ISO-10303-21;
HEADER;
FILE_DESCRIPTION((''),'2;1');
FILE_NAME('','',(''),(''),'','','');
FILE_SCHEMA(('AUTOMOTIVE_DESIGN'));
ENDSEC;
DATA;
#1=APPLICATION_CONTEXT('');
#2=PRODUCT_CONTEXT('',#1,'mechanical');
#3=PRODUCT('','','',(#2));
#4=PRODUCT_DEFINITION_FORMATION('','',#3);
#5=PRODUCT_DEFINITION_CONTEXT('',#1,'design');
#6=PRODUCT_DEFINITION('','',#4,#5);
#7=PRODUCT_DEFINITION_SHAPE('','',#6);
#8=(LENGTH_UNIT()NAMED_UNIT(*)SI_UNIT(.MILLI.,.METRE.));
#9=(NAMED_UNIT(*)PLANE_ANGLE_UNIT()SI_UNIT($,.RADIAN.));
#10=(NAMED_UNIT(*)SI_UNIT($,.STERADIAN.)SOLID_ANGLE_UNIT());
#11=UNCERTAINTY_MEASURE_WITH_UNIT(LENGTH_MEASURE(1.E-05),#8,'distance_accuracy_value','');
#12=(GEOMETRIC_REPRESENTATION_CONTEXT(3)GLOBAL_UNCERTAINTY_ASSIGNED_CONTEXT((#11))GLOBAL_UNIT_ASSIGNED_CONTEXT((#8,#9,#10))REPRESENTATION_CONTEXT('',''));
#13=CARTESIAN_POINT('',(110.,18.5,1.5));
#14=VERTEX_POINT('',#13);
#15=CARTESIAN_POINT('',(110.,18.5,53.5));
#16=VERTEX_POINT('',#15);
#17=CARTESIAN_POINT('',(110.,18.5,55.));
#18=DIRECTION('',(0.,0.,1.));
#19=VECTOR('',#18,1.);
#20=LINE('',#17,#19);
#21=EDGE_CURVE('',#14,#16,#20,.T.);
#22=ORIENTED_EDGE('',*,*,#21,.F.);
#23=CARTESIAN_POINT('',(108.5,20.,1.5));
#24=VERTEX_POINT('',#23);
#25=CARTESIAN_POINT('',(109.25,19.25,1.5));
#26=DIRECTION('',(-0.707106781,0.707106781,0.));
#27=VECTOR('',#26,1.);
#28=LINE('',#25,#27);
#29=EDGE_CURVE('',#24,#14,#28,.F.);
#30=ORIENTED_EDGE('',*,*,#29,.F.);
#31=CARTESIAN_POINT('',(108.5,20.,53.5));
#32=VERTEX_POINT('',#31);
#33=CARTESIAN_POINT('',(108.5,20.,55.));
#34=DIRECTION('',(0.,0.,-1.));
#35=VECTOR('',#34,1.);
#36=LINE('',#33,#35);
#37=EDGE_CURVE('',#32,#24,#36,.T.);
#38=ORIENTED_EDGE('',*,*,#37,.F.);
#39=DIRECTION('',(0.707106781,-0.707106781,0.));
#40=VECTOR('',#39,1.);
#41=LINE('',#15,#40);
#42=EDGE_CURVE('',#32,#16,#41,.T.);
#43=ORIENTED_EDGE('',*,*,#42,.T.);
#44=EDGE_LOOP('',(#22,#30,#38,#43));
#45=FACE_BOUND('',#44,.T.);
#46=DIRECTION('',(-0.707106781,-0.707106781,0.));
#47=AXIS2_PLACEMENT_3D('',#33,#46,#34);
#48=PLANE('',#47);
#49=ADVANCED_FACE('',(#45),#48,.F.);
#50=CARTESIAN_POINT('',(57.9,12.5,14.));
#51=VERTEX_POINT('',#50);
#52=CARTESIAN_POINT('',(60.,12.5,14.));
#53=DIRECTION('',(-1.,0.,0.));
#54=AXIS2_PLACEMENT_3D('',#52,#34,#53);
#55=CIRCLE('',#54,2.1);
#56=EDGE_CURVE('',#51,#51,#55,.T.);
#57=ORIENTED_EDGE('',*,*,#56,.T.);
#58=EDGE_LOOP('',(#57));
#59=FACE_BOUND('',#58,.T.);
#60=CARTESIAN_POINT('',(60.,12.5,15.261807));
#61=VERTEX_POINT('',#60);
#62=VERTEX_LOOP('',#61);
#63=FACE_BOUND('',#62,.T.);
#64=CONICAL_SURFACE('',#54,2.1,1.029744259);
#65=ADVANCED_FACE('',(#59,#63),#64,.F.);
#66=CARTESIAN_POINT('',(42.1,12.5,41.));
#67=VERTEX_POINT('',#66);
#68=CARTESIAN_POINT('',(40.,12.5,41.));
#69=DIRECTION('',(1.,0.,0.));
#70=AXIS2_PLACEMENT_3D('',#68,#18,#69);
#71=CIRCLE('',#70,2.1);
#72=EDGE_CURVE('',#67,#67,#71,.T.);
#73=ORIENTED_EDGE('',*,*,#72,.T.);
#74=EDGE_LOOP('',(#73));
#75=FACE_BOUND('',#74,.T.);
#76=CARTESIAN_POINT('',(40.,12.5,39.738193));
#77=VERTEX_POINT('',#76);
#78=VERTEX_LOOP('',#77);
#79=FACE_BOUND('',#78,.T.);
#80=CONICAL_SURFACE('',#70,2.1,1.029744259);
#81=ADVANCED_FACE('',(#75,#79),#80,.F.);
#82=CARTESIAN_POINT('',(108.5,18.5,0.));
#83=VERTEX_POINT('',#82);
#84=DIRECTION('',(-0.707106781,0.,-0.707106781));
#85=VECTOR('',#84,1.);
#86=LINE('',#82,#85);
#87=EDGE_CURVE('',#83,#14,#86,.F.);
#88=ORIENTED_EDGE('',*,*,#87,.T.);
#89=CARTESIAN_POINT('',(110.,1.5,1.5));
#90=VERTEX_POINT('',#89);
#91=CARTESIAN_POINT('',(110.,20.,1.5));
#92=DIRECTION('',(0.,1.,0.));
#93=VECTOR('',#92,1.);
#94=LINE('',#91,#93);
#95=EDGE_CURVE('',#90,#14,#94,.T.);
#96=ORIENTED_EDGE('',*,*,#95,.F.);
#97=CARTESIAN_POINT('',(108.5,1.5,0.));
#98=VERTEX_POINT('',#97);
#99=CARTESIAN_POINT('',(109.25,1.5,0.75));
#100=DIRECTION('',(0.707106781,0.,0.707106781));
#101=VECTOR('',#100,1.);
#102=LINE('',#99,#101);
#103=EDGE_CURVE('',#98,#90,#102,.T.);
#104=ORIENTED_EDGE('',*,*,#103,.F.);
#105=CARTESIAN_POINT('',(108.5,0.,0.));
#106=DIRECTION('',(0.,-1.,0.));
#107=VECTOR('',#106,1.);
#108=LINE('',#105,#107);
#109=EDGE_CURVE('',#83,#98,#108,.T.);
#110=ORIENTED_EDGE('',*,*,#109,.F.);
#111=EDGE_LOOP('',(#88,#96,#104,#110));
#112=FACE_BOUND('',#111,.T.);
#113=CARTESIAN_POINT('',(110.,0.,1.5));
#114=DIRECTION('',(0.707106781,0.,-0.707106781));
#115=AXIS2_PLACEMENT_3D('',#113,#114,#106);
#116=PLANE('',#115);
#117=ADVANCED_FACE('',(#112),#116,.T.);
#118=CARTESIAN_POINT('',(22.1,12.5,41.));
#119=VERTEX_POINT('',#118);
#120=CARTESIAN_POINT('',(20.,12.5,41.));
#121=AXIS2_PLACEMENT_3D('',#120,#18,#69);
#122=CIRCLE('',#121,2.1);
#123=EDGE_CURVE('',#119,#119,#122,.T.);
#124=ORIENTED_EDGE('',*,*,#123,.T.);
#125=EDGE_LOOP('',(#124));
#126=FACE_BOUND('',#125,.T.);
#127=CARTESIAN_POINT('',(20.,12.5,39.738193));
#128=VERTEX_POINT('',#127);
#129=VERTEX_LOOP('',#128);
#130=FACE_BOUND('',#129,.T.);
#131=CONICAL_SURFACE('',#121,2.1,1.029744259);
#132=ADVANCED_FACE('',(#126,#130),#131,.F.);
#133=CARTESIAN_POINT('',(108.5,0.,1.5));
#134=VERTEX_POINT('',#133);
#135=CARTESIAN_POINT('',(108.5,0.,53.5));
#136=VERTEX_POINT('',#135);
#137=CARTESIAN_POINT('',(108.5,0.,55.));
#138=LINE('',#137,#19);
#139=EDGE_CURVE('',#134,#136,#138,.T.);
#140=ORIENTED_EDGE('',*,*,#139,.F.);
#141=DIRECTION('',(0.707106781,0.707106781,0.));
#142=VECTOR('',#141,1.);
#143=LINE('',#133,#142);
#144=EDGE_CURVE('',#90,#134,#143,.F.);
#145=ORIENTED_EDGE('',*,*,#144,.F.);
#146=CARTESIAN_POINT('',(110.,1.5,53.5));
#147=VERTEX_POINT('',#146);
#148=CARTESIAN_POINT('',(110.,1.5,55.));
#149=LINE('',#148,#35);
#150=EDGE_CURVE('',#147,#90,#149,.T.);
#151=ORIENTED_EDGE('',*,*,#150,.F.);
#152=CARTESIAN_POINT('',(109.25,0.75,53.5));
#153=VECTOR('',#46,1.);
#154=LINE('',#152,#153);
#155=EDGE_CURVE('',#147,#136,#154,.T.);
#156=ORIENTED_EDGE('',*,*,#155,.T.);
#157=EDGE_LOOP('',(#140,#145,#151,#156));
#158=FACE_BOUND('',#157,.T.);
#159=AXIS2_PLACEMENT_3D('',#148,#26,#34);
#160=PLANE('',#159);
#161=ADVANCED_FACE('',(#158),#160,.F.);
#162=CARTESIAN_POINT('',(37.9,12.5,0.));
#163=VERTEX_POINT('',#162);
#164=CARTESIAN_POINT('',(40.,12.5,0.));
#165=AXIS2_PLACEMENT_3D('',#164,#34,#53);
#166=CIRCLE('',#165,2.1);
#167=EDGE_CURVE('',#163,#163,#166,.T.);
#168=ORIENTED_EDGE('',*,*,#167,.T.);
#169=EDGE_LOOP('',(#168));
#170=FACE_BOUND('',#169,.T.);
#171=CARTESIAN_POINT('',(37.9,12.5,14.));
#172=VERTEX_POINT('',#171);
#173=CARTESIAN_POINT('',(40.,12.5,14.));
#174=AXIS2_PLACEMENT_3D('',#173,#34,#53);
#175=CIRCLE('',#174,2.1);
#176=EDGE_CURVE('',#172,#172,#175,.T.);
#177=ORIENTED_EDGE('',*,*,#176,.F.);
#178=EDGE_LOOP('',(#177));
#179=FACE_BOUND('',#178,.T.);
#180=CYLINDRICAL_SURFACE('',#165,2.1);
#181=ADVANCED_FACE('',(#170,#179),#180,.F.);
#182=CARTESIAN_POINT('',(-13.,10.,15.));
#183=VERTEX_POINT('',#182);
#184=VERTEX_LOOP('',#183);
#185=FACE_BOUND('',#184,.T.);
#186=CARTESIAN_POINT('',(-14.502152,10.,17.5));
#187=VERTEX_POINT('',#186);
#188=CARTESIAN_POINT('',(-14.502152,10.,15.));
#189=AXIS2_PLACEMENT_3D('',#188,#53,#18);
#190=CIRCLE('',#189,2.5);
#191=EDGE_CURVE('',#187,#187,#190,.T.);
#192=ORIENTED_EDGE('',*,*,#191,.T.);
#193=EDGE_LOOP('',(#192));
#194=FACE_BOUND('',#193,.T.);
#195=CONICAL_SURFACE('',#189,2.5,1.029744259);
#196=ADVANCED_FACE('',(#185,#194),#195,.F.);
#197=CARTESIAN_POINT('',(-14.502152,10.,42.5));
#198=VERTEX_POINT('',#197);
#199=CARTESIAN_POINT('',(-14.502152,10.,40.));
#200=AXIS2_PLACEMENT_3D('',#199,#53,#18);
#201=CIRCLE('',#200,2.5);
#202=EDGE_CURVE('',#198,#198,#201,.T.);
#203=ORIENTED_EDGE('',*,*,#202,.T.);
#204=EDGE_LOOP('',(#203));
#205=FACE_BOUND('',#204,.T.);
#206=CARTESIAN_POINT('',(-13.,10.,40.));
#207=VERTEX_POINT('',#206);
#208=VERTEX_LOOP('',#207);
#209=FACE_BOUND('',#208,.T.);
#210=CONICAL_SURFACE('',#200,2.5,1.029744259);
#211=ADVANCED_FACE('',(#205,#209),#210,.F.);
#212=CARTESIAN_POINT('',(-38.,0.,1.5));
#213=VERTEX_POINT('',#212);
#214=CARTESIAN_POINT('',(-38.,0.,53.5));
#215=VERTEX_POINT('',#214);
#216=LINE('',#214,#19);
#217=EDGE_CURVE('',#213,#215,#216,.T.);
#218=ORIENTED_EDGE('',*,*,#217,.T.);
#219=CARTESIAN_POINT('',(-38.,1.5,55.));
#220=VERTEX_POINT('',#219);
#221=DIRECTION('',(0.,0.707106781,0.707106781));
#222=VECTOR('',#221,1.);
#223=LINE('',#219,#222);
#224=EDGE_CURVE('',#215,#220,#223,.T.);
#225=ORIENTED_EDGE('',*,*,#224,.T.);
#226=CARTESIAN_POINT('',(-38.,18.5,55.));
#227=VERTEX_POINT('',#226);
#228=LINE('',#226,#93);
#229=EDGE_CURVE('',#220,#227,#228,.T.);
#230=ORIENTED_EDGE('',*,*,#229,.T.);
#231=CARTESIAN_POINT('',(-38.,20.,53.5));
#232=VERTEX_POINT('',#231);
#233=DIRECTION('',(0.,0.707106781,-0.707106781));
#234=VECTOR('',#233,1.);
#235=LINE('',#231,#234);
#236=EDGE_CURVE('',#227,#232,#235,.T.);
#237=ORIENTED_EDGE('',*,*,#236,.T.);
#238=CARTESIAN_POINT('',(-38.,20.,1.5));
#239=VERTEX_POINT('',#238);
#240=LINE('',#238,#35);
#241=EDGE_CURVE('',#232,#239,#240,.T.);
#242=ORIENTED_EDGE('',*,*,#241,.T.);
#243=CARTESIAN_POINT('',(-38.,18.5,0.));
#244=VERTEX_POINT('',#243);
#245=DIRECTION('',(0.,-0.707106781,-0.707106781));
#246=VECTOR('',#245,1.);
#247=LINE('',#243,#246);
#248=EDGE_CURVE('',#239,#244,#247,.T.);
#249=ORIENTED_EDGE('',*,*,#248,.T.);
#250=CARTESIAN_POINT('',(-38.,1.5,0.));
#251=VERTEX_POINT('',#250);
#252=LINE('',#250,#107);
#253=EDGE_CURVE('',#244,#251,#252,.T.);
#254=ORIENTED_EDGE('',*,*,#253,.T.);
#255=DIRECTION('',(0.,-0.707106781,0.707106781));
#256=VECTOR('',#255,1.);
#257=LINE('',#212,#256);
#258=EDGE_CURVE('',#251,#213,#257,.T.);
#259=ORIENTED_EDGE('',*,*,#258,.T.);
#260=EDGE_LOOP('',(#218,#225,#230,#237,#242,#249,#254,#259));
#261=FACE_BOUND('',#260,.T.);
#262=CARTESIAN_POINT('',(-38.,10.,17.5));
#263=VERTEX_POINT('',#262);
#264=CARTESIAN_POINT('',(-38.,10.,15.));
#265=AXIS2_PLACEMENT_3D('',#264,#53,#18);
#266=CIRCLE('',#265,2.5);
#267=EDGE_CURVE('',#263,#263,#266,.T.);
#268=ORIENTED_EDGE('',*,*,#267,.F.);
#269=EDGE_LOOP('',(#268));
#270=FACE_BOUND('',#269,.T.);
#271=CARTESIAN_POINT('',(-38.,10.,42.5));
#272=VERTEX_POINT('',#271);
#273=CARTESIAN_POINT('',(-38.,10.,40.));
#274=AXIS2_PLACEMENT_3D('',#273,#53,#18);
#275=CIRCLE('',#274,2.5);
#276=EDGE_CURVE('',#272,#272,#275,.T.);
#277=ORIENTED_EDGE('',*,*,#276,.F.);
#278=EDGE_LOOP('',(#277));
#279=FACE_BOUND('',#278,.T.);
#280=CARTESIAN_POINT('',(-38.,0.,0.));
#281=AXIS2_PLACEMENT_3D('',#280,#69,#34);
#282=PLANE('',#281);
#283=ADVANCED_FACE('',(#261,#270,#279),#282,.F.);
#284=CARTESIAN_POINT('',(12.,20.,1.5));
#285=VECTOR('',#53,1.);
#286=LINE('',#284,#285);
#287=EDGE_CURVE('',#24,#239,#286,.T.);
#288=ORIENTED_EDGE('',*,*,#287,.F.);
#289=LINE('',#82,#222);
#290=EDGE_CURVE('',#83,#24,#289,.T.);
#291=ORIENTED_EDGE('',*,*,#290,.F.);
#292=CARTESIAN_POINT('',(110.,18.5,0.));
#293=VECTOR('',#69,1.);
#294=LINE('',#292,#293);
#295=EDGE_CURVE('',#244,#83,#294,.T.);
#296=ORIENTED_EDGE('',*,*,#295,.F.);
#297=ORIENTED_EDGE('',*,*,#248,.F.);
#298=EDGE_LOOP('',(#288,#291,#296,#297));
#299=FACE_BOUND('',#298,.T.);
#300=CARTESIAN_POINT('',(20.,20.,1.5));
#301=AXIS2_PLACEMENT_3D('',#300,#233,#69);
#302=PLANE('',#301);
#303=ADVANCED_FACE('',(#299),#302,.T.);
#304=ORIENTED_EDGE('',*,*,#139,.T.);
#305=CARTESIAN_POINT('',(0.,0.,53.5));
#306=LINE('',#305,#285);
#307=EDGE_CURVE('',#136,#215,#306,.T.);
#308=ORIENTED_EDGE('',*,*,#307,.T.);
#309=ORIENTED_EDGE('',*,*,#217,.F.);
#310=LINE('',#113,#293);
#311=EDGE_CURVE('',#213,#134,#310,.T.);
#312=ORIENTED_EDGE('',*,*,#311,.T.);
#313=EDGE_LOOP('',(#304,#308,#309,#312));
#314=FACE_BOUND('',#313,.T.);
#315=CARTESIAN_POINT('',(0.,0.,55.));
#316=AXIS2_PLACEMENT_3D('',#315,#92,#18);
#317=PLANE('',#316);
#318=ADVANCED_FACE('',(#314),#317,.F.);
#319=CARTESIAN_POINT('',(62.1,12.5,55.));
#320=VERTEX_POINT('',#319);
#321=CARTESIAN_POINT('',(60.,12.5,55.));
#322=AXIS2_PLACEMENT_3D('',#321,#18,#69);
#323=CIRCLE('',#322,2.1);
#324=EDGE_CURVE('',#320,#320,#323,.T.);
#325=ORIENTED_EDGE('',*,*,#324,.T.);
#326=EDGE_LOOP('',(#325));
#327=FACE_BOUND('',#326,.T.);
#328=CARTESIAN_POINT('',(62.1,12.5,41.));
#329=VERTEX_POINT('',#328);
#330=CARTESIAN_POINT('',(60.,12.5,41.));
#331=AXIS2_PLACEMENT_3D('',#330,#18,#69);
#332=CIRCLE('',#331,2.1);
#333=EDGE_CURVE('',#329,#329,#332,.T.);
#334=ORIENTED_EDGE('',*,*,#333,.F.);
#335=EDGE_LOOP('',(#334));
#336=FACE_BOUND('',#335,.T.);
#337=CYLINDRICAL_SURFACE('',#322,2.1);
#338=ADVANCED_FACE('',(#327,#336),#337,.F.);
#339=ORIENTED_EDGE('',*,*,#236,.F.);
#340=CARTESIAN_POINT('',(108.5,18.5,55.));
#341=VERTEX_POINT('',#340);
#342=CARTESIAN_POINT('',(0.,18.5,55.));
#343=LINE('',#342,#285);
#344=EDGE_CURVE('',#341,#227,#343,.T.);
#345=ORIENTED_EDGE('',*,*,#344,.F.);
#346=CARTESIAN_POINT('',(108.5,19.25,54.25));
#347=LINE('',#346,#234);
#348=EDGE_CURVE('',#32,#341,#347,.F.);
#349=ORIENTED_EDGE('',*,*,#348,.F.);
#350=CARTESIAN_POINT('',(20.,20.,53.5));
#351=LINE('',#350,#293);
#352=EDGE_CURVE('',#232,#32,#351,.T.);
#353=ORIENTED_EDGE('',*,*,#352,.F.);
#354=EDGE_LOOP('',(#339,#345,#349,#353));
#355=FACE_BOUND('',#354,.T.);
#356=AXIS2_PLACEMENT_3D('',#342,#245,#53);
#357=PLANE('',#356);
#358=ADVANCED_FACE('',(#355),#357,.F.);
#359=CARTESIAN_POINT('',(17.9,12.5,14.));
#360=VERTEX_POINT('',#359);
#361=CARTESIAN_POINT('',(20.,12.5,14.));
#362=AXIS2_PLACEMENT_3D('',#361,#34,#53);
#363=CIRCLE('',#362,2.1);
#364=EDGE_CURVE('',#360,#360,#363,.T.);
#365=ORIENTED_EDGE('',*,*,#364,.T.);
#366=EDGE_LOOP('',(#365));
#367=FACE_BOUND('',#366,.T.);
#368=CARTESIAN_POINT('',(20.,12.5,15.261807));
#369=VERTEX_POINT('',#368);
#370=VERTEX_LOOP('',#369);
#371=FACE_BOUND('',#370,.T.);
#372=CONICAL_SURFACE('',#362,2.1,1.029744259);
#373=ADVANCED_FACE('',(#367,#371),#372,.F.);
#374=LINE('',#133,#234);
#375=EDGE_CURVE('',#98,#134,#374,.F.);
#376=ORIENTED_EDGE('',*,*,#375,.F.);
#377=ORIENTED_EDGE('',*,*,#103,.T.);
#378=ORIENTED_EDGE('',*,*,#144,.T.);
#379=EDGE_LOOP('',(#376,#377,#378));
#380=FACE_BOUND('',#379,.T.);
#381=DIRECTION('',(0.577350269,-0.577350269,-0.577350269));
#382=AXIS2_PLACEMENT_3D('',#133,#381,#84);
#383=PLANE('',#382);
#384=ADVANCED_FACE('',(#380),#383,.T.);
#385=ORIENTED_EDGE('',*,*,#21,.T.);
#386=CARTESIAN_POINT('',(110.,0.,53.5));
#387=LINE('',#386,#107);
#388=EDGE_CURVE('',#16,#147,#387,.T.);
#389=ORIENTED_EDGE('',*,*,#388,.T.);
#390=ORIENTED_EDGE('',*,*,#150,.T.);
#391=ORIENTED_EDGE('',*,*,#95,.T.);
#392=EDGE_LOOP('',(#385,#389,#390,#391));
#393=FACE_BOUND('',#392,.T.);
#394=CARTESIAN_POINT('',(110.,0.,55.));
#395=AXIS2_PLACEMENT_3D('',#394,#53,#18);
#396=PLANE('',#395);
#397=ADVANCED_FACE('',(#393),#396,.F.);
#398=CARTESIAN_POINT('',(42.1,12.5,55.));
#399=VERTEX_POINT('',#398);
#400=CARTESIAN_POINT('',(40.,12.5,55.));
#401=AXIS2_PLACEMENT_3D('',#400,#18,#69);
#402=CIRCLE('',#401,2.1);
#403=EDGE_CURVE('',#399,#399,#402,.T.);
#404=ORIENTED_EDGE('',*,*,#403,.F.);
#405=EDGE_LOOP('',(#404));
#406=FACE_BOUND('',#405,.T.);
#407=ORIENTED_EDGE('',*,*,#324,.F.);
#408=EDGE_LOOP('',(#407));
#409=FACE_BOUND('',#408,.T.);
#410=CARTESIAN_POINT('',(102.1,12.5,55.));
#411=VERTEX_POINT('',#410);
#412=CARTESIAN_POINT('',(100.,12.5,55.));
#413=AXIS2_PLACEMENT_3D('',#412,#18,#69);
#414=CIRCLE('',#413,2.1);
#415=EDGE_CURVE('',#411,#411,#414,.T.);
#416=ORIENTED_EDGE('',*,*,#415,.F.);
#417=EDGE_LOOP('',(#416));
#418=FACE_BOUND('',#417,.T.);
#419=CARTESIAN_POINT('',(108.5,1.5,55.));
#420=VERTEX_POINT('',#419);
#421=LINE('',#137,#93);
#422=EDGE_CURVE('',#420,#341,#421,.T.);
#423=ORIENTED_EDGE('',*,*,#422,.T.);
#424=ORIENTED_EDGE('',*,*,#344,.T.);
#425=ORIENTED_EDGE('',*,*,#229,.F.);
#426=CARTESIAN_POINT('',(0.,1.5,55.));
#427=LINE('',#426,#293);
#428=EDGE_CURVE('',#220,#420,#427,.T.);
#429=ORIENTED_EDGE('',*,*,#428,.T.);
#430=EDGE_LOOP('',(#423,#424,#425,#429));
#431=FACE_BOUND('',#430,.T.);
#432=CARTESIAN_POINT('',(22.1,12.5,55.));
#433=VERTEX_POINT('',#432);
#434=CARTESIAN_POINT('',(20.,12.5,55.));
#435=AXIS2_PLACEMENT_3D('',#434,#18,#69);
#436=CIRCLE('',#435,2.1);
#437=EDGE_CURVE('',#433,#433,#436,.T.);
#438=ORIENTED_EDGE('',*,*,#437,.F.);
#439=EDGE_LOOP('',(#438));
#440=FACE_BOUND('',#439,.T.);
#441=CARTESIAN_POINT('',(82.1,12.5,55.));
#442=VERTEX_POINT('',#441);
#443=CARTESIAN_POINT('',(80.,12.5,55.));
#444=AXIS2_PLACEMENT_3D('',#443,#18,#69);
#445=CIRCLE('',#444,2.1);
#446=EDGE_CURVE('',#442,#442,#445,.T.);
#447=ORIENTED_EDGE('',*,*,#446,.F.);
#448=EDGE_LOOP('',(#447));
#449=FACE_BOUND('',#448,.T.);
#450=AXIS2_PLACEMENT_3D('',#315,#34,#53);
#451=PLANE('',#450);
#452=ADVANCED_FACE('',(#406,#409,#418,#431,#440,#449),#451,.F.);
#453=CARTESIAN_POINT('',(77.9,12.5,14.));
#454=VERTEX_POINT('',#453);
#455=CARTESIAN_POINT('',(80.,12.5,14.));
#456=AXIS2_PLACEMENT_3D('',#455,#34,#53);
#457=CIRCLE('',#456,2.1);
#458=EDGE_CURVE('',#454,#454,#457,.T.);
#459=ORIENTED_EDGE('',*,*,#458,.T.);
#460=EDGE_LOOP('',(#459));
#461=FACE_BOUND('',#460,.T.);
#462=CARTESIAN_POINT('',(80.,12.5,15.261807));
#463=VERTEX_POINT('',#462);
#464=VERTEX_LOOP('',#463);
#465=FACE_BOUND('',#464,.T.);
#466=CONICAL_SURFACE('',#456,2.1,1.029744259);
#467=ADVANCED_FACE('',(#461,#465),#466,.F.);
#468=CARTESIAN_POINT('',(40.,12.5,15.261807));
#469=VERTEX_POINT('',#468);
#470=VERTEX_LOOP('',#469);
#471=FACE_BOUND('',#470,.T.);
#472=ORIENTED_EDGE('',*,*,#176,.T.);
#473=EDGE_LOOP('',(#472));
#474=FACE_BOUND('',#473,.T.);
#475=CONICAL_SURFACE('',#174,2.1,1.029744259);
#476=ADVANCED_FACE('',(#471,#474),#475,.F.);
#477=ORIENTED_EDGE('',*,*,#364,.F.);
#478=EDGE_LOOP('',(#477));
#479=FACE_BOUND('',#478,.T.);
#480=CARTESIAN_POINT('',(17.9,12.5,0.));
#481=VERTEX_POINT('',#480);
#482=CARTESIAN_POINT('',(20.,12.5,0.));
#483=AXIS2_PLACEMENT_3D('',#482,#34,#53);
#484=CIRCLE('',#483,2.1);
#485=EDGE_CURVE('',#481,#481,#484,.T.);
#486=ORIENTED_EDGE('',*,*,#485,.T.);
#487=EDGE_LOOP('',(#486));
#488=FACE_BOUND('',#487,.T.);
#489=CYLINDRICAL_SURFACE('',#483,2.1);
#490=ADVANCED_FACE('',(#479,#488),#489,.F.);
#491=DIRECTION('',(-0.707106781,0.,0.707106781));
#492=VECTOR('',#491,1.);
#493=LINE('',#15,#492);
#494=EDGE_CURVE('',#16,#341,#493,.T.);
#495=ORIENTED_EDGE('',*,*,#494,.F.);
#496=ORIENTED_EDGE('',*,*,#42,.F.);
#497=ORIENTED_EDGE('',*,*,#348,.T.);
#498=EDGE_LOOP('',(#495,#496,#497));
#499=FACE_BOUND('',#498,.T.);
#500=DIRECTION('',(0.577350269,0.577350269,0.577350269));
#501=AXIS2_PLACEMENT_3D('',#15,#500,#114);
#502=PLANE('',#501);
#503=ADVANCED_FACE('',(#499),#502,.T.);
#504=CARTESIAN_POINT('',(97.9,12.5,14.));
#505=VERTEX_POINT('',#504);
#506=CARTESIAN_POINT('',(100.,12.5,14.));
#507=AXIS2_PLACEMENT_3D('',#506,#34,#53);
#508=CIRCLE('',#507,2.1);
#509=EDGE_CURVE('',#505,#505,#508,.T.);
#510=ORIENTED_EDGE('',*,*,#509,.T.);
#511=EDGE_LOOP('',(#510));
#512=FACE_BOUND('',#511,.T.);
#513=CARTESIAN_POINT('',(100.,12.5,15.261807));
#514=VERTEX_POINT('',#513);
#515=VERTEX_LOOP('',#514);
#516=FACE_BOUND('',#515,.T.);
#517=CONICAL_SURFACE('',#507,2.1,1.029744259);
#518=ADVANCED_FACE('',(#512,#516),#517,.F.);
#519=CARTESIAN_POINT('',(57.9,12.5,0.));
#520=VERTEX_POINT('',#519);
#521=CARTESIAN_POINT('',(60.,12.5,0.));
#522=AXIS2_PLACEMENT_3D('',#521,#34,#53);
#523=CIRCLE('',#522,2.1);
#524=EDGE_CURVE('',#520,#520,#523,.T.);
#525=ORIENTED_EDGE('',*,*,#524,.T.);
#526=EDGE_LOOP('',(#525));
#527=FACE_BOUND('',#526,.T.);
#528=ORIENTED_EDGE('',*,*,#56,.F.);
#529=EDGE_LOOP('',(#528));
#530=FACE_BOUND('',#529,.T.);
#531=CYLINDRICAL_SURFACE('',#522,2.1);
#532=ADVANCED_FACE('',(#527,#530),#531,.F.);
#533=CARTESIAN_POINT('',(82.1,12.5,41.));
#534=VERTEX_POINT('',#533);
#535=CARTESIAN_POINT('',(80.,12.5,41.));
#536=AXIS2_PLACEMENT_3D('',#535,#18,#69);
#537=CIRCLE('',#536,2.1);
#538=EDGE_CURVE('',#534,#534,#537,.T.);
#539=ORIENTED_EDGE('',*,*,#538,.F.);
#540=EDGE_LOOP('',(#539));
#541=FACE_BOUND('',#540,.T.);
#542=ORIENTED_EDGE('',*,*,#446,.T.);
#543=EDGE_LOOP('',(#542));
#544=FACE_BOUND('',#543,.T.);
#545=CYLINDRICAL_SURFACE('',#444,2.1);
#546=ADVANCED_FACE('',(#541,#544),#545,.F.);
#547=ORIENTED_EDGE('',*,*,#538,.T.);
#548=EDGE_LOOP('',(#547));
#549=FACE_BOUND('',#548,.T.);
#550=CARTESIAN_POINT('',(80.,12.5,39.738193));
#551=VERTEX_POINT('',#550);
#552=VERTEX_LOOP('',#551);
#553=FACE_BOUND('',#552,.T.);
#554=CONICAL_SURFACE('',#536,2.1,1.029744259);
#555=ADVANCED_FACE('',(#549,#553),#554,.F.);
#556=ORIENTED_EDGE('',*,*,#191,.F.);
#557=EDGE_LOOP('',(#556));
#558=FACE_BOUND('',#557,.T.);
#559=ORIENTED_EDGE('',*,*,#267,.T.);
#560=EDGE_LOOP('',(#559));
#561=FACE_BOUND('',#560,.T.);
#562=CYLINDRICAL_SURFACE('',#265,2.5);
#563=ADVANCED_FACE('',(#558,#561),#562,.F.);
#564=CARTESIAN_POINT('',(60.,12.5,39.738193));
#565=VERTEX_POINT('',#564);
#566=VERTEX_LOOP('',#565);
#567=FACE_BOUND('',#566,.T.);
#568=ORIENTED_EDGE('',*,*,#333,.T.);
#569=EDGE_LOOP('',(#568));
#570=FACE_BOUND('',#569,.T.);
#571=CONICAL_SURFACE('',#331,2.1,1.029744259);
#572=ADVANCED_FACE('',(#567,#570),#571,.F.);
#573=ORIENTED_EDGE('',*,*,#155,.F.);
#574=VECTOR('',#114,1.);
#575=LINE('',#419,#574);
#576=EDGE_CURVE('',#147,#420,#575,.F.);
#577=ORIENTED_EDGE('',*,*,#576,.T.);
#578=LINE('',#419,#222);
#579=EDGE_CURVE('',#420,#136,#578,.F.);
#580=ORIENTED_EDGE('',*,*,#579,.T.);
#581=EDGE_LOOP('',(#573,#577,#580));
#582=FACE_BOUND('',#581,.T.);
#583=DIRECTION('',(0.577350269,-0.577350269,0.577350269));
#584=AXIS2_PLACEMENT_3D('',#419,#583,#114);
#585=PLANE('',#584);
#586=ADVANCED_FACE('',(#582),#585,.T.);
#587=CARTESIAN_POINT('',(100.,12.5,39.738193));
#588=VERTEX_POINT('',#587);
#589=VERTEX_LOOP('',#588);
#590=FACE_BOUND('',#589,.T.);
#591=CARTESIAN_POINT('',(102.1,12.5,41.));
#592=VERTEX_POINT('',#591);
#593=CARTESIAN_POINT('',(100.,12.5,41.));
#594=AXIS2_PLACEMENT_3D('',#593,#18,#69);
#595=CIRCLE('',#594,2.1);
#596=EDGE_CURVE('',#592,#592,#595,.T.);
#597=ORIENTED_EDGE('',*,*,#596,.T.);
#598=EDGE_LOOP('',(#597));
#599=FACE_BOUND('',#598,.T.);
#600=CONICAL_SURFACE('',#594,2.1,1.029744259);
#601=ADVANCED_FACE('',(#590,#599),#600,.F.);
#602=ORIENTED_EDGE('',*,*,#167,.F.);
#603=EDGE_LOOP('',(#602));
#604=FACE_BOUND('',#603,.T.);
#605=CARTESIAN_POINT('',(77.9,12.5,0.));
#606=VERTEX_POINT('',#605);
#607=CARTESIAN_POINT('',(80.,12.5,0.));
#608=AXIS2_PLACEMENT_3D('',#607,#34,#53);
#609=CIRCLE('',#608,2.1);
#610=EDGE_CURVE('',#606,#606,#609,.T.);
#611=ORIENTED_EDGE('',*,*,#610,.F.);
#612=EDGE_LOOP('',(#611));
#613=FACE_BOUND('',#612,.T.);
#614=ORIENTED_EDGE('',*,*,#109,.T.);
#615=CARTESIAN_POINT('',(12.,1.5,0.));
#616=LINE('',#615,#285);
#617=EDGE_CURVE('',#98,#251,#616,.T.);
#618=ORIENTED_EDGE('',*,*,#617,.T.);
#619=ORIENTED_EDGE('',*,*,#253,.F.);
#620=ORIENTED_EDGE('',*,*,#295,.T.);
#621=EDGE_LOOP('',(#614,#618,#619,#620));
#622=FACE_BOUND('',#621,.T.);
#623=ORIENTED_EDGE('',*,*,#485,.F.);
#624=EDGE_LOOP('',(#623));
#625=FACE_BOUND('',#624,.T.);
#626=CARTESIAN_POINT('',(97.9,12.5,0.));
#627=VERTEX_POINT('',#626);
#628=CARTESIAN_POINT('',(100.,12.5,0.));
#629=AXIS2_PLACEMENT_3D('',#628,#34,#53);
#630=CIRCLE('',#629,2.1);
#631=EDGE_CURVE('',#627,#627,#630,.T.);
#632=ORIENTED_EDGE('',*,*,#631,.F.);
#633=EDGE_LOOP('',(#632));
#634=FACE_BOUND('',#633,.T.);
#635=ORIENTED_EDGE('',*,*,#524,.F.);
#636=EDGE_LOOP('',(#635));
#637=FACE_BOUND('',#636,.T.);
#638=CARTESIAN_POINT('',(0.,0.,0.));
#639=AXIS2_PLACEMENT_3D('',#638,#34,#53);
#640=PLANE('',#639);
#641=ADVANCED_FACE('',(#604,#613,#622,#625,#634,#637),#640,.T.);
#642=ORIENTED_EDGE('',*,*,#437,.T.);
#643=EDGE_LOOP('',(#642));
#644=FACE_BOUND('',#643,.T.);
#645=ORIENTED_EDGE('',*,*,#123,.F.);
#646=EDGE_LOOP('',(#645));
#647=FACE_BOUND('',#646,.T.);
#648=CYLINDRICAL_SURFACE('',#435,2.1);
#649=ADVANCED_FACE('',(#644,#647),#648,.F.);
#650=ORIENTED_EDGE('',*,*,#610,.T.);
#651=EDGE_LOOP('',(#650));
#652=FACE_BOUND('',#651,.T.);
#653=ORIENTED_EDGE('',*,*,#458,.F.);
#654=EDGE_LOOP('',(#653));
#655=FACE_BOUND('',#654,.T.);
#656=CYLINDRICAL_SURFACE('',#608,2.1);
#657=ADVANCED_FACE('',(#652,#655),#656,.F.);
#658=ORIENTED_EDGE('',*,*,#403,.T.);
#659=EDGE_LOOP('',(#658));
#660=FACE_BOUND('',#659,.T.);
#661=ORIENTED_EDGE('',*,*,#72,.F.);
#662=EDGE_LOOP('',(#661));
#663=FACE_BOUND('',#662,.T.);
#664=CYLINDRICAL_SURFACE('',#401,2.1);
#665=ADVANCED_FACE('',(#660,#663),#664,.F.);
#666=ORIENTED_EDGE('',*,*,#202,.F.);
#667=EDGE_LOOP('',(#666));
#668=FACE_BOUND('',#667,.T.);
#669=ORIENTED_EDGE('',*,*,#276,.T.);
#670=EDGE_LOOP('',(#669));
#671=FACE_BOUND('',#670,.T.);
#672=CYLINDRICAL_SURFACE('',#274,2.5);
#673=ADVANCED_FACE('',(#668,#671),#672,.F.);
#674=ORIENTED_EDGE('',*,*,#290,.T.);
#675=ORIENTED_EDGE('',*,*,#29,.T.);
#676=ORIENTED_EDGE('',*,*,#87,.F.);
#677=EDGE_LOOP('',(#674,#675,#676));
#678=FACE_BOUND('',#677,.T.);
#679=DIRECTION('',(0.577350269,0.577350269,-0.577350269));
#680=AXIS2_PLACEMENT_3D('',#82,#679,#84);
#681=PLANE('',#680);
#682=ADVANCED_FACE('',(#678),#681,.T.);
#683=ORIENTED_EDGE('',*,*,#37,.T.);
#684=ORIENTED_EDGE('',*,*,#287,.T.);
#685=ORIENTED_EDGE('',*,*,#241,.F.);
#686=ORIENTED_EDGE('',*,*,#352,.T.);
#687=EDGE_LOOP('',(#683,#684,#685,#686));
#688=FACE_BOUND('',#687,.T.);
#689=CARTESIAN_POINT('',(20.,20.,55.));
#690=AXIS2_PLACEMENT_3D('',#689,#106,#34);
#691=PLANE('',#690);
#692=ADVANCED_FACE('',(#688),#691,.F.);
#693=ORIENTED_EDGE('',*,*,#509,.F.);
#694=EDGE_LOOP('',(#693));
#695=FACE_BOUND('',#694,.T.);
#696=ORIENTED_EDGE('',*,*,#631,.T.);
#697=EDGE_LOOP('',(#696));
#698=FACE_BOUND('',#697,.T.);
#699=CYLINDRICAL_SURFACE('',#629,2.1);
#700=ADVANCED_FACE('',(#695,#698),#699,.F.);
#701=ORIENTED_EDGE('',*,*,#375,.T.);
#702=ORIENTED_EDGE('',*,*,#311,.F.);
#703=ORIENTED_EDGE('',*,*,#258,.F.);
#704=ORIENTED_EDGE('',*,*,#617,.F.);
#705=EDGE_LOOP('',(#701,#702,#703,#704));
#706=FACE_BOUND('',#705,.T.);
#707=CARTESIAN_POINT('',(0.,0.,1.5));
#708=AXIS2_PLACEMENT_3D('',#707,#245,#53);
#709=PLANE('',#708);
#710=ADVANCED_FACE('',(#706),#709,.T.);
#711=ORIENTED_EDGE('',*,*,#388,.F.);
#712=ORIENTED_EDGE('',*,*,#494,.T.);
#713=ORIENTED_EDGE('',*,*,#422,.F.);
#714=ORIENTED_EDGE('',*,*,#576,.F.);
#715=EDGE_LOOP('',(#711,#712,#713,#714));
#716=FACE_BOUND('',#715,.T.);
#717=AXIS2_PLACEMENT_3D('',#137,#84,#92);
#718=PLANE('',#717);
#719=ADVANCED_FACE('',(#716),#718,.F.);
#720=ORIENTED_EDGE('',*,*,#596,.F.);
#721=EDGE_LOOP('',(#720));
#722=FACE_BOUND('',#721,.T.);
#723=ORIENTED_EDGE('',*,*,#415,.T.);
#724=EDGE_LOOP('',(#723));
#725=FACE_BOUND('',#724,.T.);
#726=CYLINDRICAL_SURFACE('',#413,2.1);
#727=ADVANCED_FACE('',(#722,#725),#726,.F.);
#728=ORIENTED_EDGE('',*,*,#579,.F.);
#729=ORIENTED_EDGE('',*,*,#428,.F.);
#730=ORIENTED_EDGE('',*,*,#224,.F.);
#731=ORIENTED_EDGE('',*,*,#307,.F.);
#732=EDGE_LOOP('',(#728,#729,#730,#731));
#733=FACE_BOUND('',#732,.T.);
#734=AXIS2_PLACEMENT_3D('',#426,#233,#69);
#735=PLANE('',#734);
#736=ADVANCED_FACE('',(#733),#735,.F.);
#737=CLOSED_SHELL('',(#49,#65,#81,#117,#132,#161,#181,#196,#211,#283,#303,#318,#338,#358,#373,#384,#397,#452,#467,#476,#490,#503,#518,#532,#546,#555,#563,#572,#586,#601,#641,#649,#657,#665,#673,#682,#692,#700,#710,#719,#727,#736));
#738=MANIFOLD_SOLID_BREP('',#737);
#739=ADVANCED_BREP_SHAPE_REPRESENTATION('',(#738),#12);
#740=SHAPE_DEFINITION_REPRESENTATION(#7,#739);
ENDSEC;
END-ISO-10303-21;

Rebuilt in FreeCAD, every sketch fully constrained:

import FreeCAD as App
import Part
import Sketcher
Q = App.Units.Quantity


def edges_at(feature, points):
    """Names of the edges that pass closest to the given points."""
    edges = feature.Shape.Edges
    near = lambda p: min(range(len(edges)), key=lambda i: edges[i].distToShape(Part.Vertex(*p))[0])
    return sorted({f"Edge{near(p) + 1}" for p in points})

doc = App.newDocument("Part")
params = doc.addObject("Spreadsheet::Sheet", "Params")
for row, (alias, value) in enumerate([
    ("sketch1_width", "110 mm"),
    ("sketch1_width2", "90 mm"),
    ("sketch1_height", "50 mm"),
    ("pad1_length", "55 mm"),
    ("sketch2_width", "70 mm"),
    ("sketch2_height", "5 mm"),
    ("pad2_length", "5 mm"),
    ("sketch3_height", "14 mm"),
    ("sketch3_width", "2.1 mm"),
    ("groove_angle", "360 deg"),
    ("linearpattern_pitch", "20 mm"),
    ("linearpattern2_pitch", "40 mm"),
    ("linearpattern3_pitch", "60 mm"),
    ("linearpattern4_pitch", "80 mm"),
    ("sketch4_height", "14 mm"),
    ("sketch4_width", "2.1 mm"),
    ("groove2_angle", "360 deg"),
    ("sketch5_height", "14 mm"),
    ("sketch5_width", "2.1 mm"),
    ("groove3_angle", "360 deg"),
    ("sketch6_height", "14 mm"),
    ("sketch6_width", "2.1 mm"),
    ("groove4_angle", "360 deg"),
    ("sketch7_height", "14 mm"),
    ("sketch7_width", "2.1 mm"),
    ("groove5_angle", "360 deg"),
    ("sketch8_width", "3 mm"),
    ("sketch8_width2", "25 mm"),
    ("sketch8_height", "20 mm"),
    ("sketch8_height2", "50 mm"),
    ("pocket1_length", "126 mm"),
    ("sketch9_width", "20 mm"),
    ("sketch9_height", "55 mm"),
    ("pad3_length", "5 mm"),
    ("chamfer_size", "1.5 mm"),
    ("sketch10_width", "17 mm"),
    ("sketch10_height", "52 mm"),
    ("pad4_length", "50 mm"),
    ("sketch11_diameter", "5 mm"),
    ("hole_diameter", "5 mm"),
    ("hole_depth", "23.497848 mm"),
], start=1):
    params.set(f"A{row}", alias)
    params.set(f"B{row}", "=" + value)
    params.setAlias(f"B{row}", alias)

body = doc.addObject("PartDesign::Body", "Body")

sketch1 = body.newObject("Sketcher::SketchObject", "Sketch")
sketch1.AttachmentSupport = (doc.getObject("XY_Plane"), [""])
sketch1.MapMode = "FlatFace"
sketch1.addGeometry([
    Part.LineSegment(App.Vector(0, 0, 0), App.Vector(110, 0, 0)),
    Part.LineSegment(App.Vector(110, 0, 0), App.Vector(110, 20, 0)),
    Part.LineSegment(App.Vector(110, 20, 0), App.Vector(20, 20, 0)),
    Part.LineSegment(App.Vector(20, 20, 0), App.Vector(20, 70, 0)),
    Part.LineSegment(App.Vector(20, 70, 0), App.Vector(0, 70, 0)),
    Part.LineSegment(App.Vector(0, 70, 0), App.Vector(0, 0, 0)),
], False)
sketch1.addConstraint([
    Sketcher.Constraint("Coincident", 0, 2, 1, 1),
    Sketcher.Constraint("Coincident", 1, 2, 2, 1),
    Sketcher.Constraint("Coincident", 2, 2, 3, 1),
    Sketcher.Constraint("Coincident", 3, 2, 4, 1),
    Sketcher.Constraint("Coincident", 4, 2, 5, 1),
    Sketcher.Constraint("Coincident", 5, 2, 0, 1),
    Sketcher.Constraint("Horizontal", 0),
    Sketcher.Constraint("Vertical", 1),
    Sketcher.Constraint("Horizontal", 2),
    Sketcher.Constraint("Vertical", 3),
    Sketcher.Constraint("Horizontal", 4),
    Sketcher.Constraint("Vertical", 5),
    Sketcher.Constraint("Coincident", 5, 2, -1, 1),
    Sketcher.Constraint("Equal", 4, 1),
    Sketcher.Constraint("DistanceX", 0, 1, 0, 2, Q("110 mm")),
    Sketcher.Constraint("DistanceX", 2, 2, 2, 1, Q("90 mm")),
    Sketcher.Constraint("DistanceY", 3, 1, 3, 2, Q("50 mm")),
])
sketch1.setExpression("Constraints[14]", "Params.sketch1_width")
sketch1.setExpression("Constraints[15]", "Params.sketch1_width2")
sketch1.setExpression("Constraints[16]", "Params.sketch1_height")
pad1 = body.newObject("PartDesign::Pad", "Pad")
pad1.Profile = sketch1
pad1.setExpression("Length", "Params.pad1_length")

sketch2 = body.newObject("Sketcher::SketchObject", "Sketch001")
sketch2.AttachmentSupport = (doc.getObject("YZ_Plane"), [""])
sketch2.MapMode = "FlatFace"
sketch2.addGeometry([
    Part.LineSegment(App.Vector(70, 50, 0), App.Vector(0, 50, 0)),
    Part.LineSegment(App.Vector(0, 50, 0), App.Vector(0, 55, 0)),
    Part.LineSegment(App.Vector(0, 55, 0), App.Vector(70, 55, 0)),
    Part.LineSegment(App.Vector(70, 55, 0), App.Vector(70, 50, 0)),
    Part.LineSegment(App.Vector(70, 0, 0), App.Vector(0, 0, 0)),
    Part.LineSegment(App.Vector(0, 0, 0), App.Vector(0, 5, 0)),
    Part.LineSegment(App.Vector(0, 5, 0), App.Vector(70, 5, 0)),
    Part.LineSegment(App.Vector(70, 5, 0), App.Vector(70, 0, 0)),
], False)
sketch2.addConstraint([
    Sketcher.Constraint("Coincident", 0, 2, 1, 1),
    Sketcher.Constraint("Coincident", 1, 2, 2, 1),
    Sketcher.Constraint("Coincident", 2, 2, 3, 1),
    Sketcher.Constraint("Coincident", 3, 2, 0, 1),
    Sketcher.Constraint("Coincident", 4, 2, 5, 1),
    Sketcher.Constraint("Coincident", 5, 2, 6, 1),
    Sketcher.Constraint("Coincident", 6, 2, 7, 1),
    Sketcher.Constraint("Coincident", 7, 2, 4, 1),
    Sketcher.Constraint("Horizontal", 0),
    Sketcher.Constraint("Vertical", 1),
    Sketcher.Constraint("Horizontal", 2),
    Sketcher.Constraint("Vertical", 3),
    Sketcher.Constraint("Horizontal", 4),
    Sketcher.Constraint("Vertical", 5),
    Sketcher.Constraint("Horizontal", 6),
    Sketcher.Constraint("Vertical", 7),
    Sketcher.Constraint("Coincident", 4, 2, -1, 1),
    Sketcher.Constraint("PointOnObject", 0, 2, -2),
    Sketcher.Constraint("Vertical", 3, 2, 6, 2),
    Sketcher.Constraint("Equal", 3, 5),
    Sketcher.Constraint("DistanceX", 0, 2, 0, 1, Q("70 mm")),
    Sketcher.Constraint("DistanceY", 1, 1, 1, 2, Q("5 mm")),
    Sketcher.Constraint("DistanceY", -1, 1, 0, 2, Q("50 mm")),
])
sketch2.setExpression("Constraints[20]", "Params.sketch2_width")
sketch2.setExpression("Constraints[21]", "Params.sketch2_height")
pad2 = body.newObject("PartDesign::Pad", "Pad001")
pad2.Profile = sketch2
pad2.setExpression("Length", "Params.pad2_length")
pad2.Reversed = True

sketch3 = body.newObject("Sketcher::SketchObject", "Sketch002")
sketch3.AttachmentSupport = (doc.getObject("YZ_Plane"), [""])
sketch3.MapMode = "FlatFace"
sketch3.AttachmentOffset = App.Placement(App.Vector(0, 0, 100), App.Rotation())
sketch3.addGeometry([
    Part.LineSegment(App.Vector(12.5, 39.738193, 0), App.Vector(12.5, 55, 0)),
    Part.LineSegment(App.Vector(12.5, 55, 0), App.Vector(10.4, 55, 0)),
    Part.LineSegment(App.Vector(10.4, 55, 0), App.Vector(10.4, 41, 0)),
    Part.LineSegment(App.Vector(10.4, 41, 0), App.Vector(12.5, 39.738193, 0)),
], False)
sketch3.addGeometry(Part.LineSegment(App.Vector(12.5, 55, 0), App.Vector(12.5, 39.738193, 0)), True)
sketch3.addConstraint([
    Sketcher.Constraint("Coincident", 0, 2, 1, 1),
    Sketcher.Constraint("Coincident", 1, 2, 2, 1),
    Sketcher.Constraint("Coincident", 2, 2, 3, 1),
    Sketcher.Constraint("Coincident", 3, 2, 0, 1),
    Sketcher.Constraint("Vertical", 0),
    Sketcher.Constraint("Horizontal", 1),
    Sketcher.Constraint("Vertical", 2),
    Sketcher.Constraint("Vertical", 4),
    Sketcher.Constraint("Coincident", 4, 1, 0, 2),
    Sketcher.Constraint("Equal", 0, 4),
    Sketcher.Constraint("DistanceY", 2, 2, 2, 1, Q("14 mm")),
    Sketcher.Constraint("Angle", 3, Q("-31 deg")),
    Sketcher.Constraint("DistanceX", 1, 2, 1, 1, Q("2.1 mm")),
    Sketcher.Constraint("DistanceY", -1, 1, 0, 2, Q("55 mm")),
    Sketcher.Constraint("DistanceX", -1, 1, 0, 2, Q("12.5 mm")),
])
sketch3.setExpression("Constraints[10]", "Params.sketch3_height")
sketch3.setExpression("Constraints[12]", "Params.sketch3_width")
groove = body.newObject("PartDesign::Groove", "Groove")
groove.Profile = sketch3
groove.ReferenceAxis = (sketch3, ["Axis0"])
groove.setExpression("Angle", "Params.groove_angle")
doc.recompute()

linearpattern = body.newObject("PartDesign::LinearPattern", "LinearPattern")
linearpattern.Originals = [groove]
linearpattern.Direction = (doc.getObject("X_Axis"), [""])
linearpattern.Mode = "offset"
linearpattern.setExpression("Offset", "Params.linearpattern_pitch")
linearpattern.Occurrences = 2
linearpattern.Reversed = True
body.Tip = linearpattern
doc.recompute()

linearpattern2 = body.newObject("PartDesign::LinearPattern", "LinearPattern001")
linearpattern2.Originals = [groove]
linearpattern2.Direction = (doc.getObject("X_Axis"), [""])
linearpattern2.Mode = "offset"
linearpattern2.setExpression("Offset", "Params.linearpattern2_pitch")
linearpattern2.Occurrences = 2
linearpattern2.Reversed = True
body.Tip = linearpattern2
doc.recompute()

linearpattern3 = body.newObject("PartDesign::LinearPattern", "LinearPattern002")
linearpattern3.Originals = [groove]
linearpattern3.Direction = (doc.getObject("X_Axis"), [""])
linearpattern3.Mode = "offset"
linearpattern3.setExpression("Offset", "Params.linearpattern3_pitch")
linearpattern3.Occurrences = 2
linearpattern3.Reversed = True
body.Tip = linearpattern3
doc.recompute()

linearpattern4 = body.newObject("PartDesign::LinearPattern", "LinearPattern003")
linearpattern4.Originals = [groove]
linearpattern4.Direction = (doc.getObject("X_Axis"), [""])
linearpattern4.Mode = "offset"
linearpattern4.setExpression("Offset", "Params.linearpattern4_pitch")
linearpattern4.Occurrences = 2
linearpattern4.Reversed = True
body.Tip = linearpattern4
doc.recompute()

datumplane = body.newObject("PartDesign::Plane", "DatumPlane")
datumplane.AttachmentSupport = (doc.getObject("XY_Plane"), [""])
datumplane.MapMode = "FlatFace"
datumplane.AttachmentOffset = App.Placement(App.Vector(0, 0, 27.5), App.Rotation())
mirrored = body.newObject("PartDesign::Mirrored", "Mirrored")
mirrored.Originals = [groove]
mirrored.MirrorPlane = (datumplane, [""])
body.Tip = mirrored

sketch4 = body.newObject("Sketcher::SketchObject", "Sketch003")
sketch4.AttachmentSupport = (doc.getObject("YZ_Plane"), [""])
sketch4.MapMode = "FlatFace"
sketch4.AttachmentOffset = App.Placement(App.Vector(0, 0, 80), App.Rotation())
sketch4.addGeometry([
    Part.LineSegment(App.Vector(12.5, 0, 0), App.Vector(12.5, 15.261807, 0)),
    Part.LineSegment(App.Vector(12.5, 15.261807, 0), App.Vector(10.4, 14, 0)),
    Part.LineSegment(App.Vector(10.4, 14, 0), App.Vector(10.4, 0, 0)),
    Part.LineSegment(App.Vector(10.4, 0, 0), App.Vector(12.5, 0, 0)),
], False)
sketch4.addGeometry(Part.LineSegment(App.Vector(12.5, 15.261807, 0), App.Vector(12.5, 0, 0)), True)
sketch4.addConstraint([
    Sketcher.Constraint("Coincident", 0, 2, 1, 1),
    Sketcher.Constraint("Coincident", 1, 2, 2, 1),
    Sketcher.Constraint("Coincident", 2, 2, 3, 1),
    Sketcher.Constraint("Coincident", 3, 2, 0, 1),
    Sketcher.Constraint("Vertical", 0),
    Sketcher.Constraint("Vertical", 2),
    Sketcher.Constraint("Horizontal", 3),
    Sketcher.Constraint("Vertical", 4),
    Sketcher.Constraint("Coincident", 4, 1, 0, 2),
    Sketcher.Constraint("PointOnObject", 2, 2, -1),
    Sketcher.Constraint("PointOnObject", 4, 2, -1),
    Sketcher.Constraint("DistanceY", 2, 2, 2, 1, Q("14 mm")),
    Sketcher.Constraint("Angle", 1, Q("-149 deg")),
    Sketcher.Constraint("DistanceX", 3, 1, 3, 2, Q("2.1 mm")),
    Sketcher.Constraint("DistanceX", -1, 1, 0, 2, Q("12.5 mm")),
])
sketch4.setExpression("Constraints[11]", "Params.sketch4_height")
sketch4.setExpression("Constraints[13]", "Params.sketch4_width")
groove2 = body.newObject("PartDesign::Groove", "Groove001")
groove2.Profile = sketch4
groove2.ReferenceAxis = (sketch4, ["Axis0"])
groove2.setExpression("Angle", "Params.groove2_angle")

sketch5 = body.newObject("Sketcher::SketchObject", "Sketch004")
sketch5.AttachmentSupport = (doc.getObject("YZ_Plane"), [""])
sketch5.MapMode = "FlatFace"
sketch5.AttachmentOffset = App.Placement(App.Vector(0, 0, 60), App.Rotation())
sketch5.addGeometry([
    Part.LineSegment(App.Vector(12.5, 0, 0), App.Vector(12.5, 15.261807, 0)),
    Part.LineSegment(App.Vector(12.5, 15.261807, 0), App.Vector(10.4, 14, 0)),
    Part.LineSegment(App.Vector(10.4, 14, 0), App.Vector(10.4, 0, 0)),
    Part.LineSegment(App.Vector(10.4, 0, 0), App.Vector(12.5, 0, 0)),
], False)
sketch5.addGeometry(Part.LineSegment(App.Vector(12.5, 15.261807, 0), App.Vector(12.5, 0, 0)), True)
sketch5.addConstraint([
    Sketcher.Constraint("Coincident", 0, 2, 1, 1),
    Sketcher.Constraint("Coincident", 1, 2, 2, 1),
    Sketcher.Constraint("Coincident", 2, 2, 3, 1),
    Sketcher.Constraint("Coincident", 3, 2, 0, 1),
    Sketcher.Constraint("Vertical", 0),
    Sketcher.Constraint("Vertical", 2),
    Sketcher.Constraint("Horizontal", 3),
    Sketcher.Constraint("Vertical", 4),
    Sketcher.Constraint("Coincident", 4, 1, 0, 2),
    Sketcher.Constraint("PointOnObject", 2, 2, -1),
    Sketcher.Constraint("PointOnObject", 4, 2, -1),
    Sketcher.Constraint("DistanceY", 2, 2, 2, 1, Q("14 mm")),
    Sketcher.Constraint("Angle", 1, Q("-149 deg")),
    Sketcher.Constraint("DistanceX", 3, 1, 3, 2, Q("2.1 mm")),
    Sketcher.Constraint("DistanceX", -1, 1, 0, 2, Q("12.5 mm")),
])
sketch5.setExpression("Constraints[11]", "Params.sketch5_height")
sketch5.setExpression("Constraints[13]", "Params.sketch5_width")
groove3 = body.newObject("PartDesign::Groove", "Groove002")
groove3.Profile = sketch5
groove3.ReferenceAxis = (sketch5, ["Axis0"])
groove3.setExpression("Angle", "Params.groove3_angle")

sketch6 = body.newObject("Sketcher::SketchObject", "Sketch005")
sketch6.AttachmentSupport = (doc.getObject("YZ_Plane"), [""])
sketch6.MapMode = "FlatFace"
sketch6.AttachmentOffset = App.Placement(App.Vector(0, 0, 40), App.Rotation())
sketch6.addGeometry([
    Part.LineSegment(App.Vector(12.5, 0, 0), App.Vector(12.5, 15.261807, 0)),
    Part.LineSegment(App.Vector(12.5, 15.261807, 0), App.Vector(10.4, 14, 0)),
    Part.LineSegment(App.Vector(10.4, 14, 0), App.Vector(10.4, 0, 0)),
    Part.LineSegment(App.Vector(10.4, 0, 0), App.Vector(12.5, 0, 0)),
], False)
sketch6.addGeometry(Part.LineSegment(App.Vector(12.5, 15.261807, 0), App.Vector(12.5, 0, 0)), True)
sketch6.addConstraint([
    Sketcher.Constraint("Coincident", 0, 2, 1, 1),
    Sketcher.Constraint("Coincident", 1, 2, 2, 1),
    Sketcher.Constraint("Coincident", 2, 2, 3, 1),
    Sketcher.Constraint("Coincident", 3, 2, 0, 1),
    Sketcher.Constraint("Vertical", 0),
    Sketcher.Constraint("Vertical", 2),
    Sketcher.Constraint("Horizontal", 3),
    Sketcher.Constraint("Vertical", 4),
    Sketcher.Constraint("Coincident", 4, 1, 0, 2),
    Sketcher.Constraint("PointOnObject", 2, 2, -1),
    Sketcher.Constraint("PointOnObject", 4, 2, -1),
    Sketcher.Constraint("DistanceY", 2, 2, 2, 1, Q("14 mm")),
    Sketcher.Constraint("Angle", 1, Q("-149 deg")),
    Sketcher.Constraint("DistanceX", 3, 1, 3, 2, Q("2.1 mm")),
    Sketcher.Constraint("DistanceX", -1, 1, 0, 2, Q("12.5 mm")),
])
sketch6.setExpression("Constraints[11]", "Params.sketch6_height")
sketch6.setExpression("Constraints[13]", "Params.sketch6_width")
groove4 = body.newObject("PartDesign::Groove", "Groove003")
groove4.Profile = sketch6
groove4.ReferenceAxis = (sketch6, ["Axis0"])
groove4.setExpression("Angle", "Params.groove4_angle")

sketch7 = body.newObject("Sketcher::SketchObject", "Sketch006")
sketch7.AttachmentSupport = (doc.getObject("YZ_Plane"), [""])
sketch7.MapMode = "FlatFace"
sketch7.AttachmentOffset = App.Placement(App.Vector(0, 0, 20), App.Rotation())
sketch7.addGeometry([
    Part.LineSegment(App.Vector(12.5, 0, 0), App.Vector(12.5, 15.261807, 0)),
    Part.LineSegment(App.Vector(12.5, 15.261807, 0), App.Vector(10.4, 14, 0)),
    Part.LineSegment(App.Vector(10.4, 14, 0), App.Vector(10.4, 0, 0)),
    Part.LineSegment(App.Vector(10.4, 0, 0), App.Vector(12.5, 0, 0)),
], False)
sketch7.addGeometry(Part.LineSegment(App.Vector(12.5, 15.261807, 0), App.Vector(12.5, 0, 0)), True)
sketch7.addConstraint([
    Sketcher.Constraint("Coincident", 0, 2, 1, 1),
    Sketcher.Constraint("Coincident", 1, 2, 2, 1),
    Sketcher.Constraint("Coincident", 2, 2, 3, 1),
    Sketcher.Constraint("Coincident", 3, 2, 0, 1),
    Sketcher.Constraint("Vertical", 0),
    Sketcher.Constraint("Vertical", 2),
    Sketcher.Constraint("Horizontal", 3),
    Sketcher.Constraint("Vertical", 4),
    Sketcher.Constraint("Coincident", 4, 1, 0, 2),
    Sketcher.Constraint("PointOnObject", 2, 2, -1),
    Sketcher.Constraint("PointOnObject", 4, 2, -1),
    Sketcher.Constraint("DistanceY", 2, 2, 2, 1, Q("14 mm")),
    Sketcher.Constraint("Angle", 1, Q("-149 deg")),
    Sketcher.Constraint("DistanceX", 3, 1, 3, 2, Q("2.1 mm")),
    Sketcher.Constraint("DistanceX", -1, 1, 0, 2, Q("12.5 mm")),
])
sketch7.setExpression("Constraints[11]", "Params.sketch7_height")
sketch7.setExpression("Constraints[13]", "Params.sketch7_width")
groove5 = body.newObject("PartDesign::Groove", "Groove004")
groove5.Profile = sketch7
groove5.ReferenceAxis = (sketch7, ["Axis0"])
groove5.setExpression("Angle", "Params.groove5_angle")

sketch8 = body.newObject("Sketcher::SketchObject", "Sketch007")
sketch8.AttachmentSupport = (doc.getObject("XY_Plane"), [""])
sketch8.MapMode = "FlatFace"
sketch8.AttachmentOffset = App.Placement(App.Vector(0, 0, 55), App.Rotation())
sketch8.addGeometry([
    Part.LineSegment(App.Vector(17, 0, 0), App.Vector(17, 20, 0)),
    Part.LineSegment(App.Vector(17, 20, 0), App.Vector(20, 20, 0)),
    Part.LineSegment(App.Vector(20, 20, 0), App.Vector(20, 70, 0)),
    Part.LineSegment(App.Vector(20, 70, 0), App.Vector(-5, 70, 0)),
    Part.LineSegment(App.Vector(-5, 70, 0), App.Vector(-5, 0, 0)),
    Part.LineSegment(App.Vector(-5, 0, 0), App.Vector(17, 0, 0)),
], False)
sketch8.addConstraint([
    Sketcher.Constraint("Coincident", 0, 2, 1, 1),
    Sketcher.Constraint("Coincident", 1, 2, 2, 1),
    Sketcher.Constraint("Coincident", 2, 2, 3, 1),
    Sketcher.Constraint("Coincident", 3, 2, 4, 1),
    Sketcher.Constraint("Coincident", 4, 2, 5, 1),
    Sketcher.Constraint("Coincident", 5, 2, 0, 1),
    Sketcher.Constraint("Vertical", 0),
    Sketcher.Constraint("Horizontal", 1),
    Sketcher.Constraint("Vertical", 2),
    Sketcher.Constraint("Horizontal", 3),
    Sketcher.Constraint("Vertical", 4),
    Sketcher.Constraint("Horizontal", 5),
    Sketcher.Constraint("PointOnObject", 4, 2, -1),
    Sketcher.Constraint("DistanceX", 1, 1, 1, 2, Q("3 mm")),
    Sketcher.Constraint("DistanceX", 3, 2, 3, 1, Q("25 mm")),
    Sketcher.Constraint("DistanceY", 0, 1, 0, 2, Q("20 mm")),
    Sketcher.Constraint("DistanceY", 2, 1, 2, 2, Q("50 mm")),
    Sketcher.Constraint("DistanceX", -1, 1, 0, 2, Q("17 mm")),
])
sketch8.setExpression("Constraints[13]", "Params.sketch8_width")
sketch8.setExpression("Constraints[14]", "Params.sketch8_width2")
sketch8.setExpression("Constraints[15]", "Params.sketch8_height")
sketch8.setExpression("Constraints[16]", "Params.sketch8_height2")
pocket1 = body.newObject("PartDesign::Pocket", "Pocket")
pocket1.Profile = sketch8
pocket1.setExpression("Length", "Params.pocket1_length")

sketch9 = body.newObject("Sketcher::SketchObject", "Sketch008")
sketch9.AttachmentSupport = (doc.getObject("YZ_Plane"), [""])
sketch9.MapMode = "FlatFace"
sketch9.AttachmentOffset = App.Placement(App.Vector(0, 0, 17), App.Rotation())
sketch9.addGeometry([
    Part.LineSegment(App.Vector(20, 0, 0), App.Vector(0, 0, 0)),
    Part.LineSegment(App.Vector(0, 0, 0), App.Vector(0, 55, 0)),
    Part.LineSegment(App.Vector(0, 55, 0), App.Vector(20, 55, 0)),
    Part.LineSegment(App.Vector(20, 55, 0), App.Vector(20, 0, 0)),
], False)
sketch9.addConstraint([
    Sketcher.Constraint("Coincident", 0, 2, 1, 1),
    Sketcher.Constraint("Coincident", 1, 2, 2, 1),
    Sketcher.Constraint("Coincident", 2, 2, 3, 1),
    Sketcher.Constraint("Coincident", 3, 2, 0, 1),
    Sketcher.Constraint("Horizontal", 0),
    Sketcher.Constraint("Vertical", 1),
    Sketcher.Constraint("Horizontal", 2),
    Sketcher.Constraint("Vertical", 3),
    Sketcher.Constraint("Coincident", 0, 2, -1, 1),
    Sketcher.Constraint("DistanceX", 0, 2, 0, 1, Q("20 mm")),
    Sketcher.Constraint("DistanceY", 1, 1, 1, 2, Q("55 mm")),
])
sketch9.setExpression("Constraints[9]", "Params.sketch9_width")
sketch9.setExpression("Constraints[10]", "Params.sketch9_height")
pad3 = body.newObject("PartDesign::Pad", "Pad002")
pad3.Profile = sketch9
pad3.setExpression("Length", "Params.pad3_length")
pad3.Reversed = True
doc.recompute()

chamfer = body.newObject("PartDesign::Chamfer", "Chamfer")
chamfer.Base = (pad3, edges_at(pad3, [
    (110, 20, 27.5),
    (110, 0, 27.5),
    (110, 10, 55),
    (61, 20, 55),
    (61, 20, 0),
    (110, 10, 0),
    (61, 0, 0),
    (61, 0, 55),
]))
chamfer.setExpression("Size", "Params.chamfer_size")

sketch10 = body.newObject("Sketcher::SketchObject", "Sketch009")
sketch10.AttachmentSupport = (doc.getObject("YZ_Plane"), [""])
sketch10.MapMode = "FlatFace"
sketch10.AttachmentOffset = App.Placement(App.Vector(0, 0, 12), App.Rotation())
sketch10.addGeometry([
    Part.LineSegment(App.Vector(20, 1.5, 0), App.Vector(18.5, 0, 0)),
    Part.LineSegment(App.Vector(18.5, 0, 0), App.Vector(1.5, 0, 0)),
    Part.LineSegment(App.Vector(1.5, 0, 0), App.Vector(0, 1.5, 0)),
    Part.LineSegment(App.Vector(0, 1.5, 0), App.Vector(0, 53.5, 0)),
    Part.LineSegment(App.Vector(0, 53.5, 0), App.Vector(1.5, 55, 0)),
    Part.LineSegment(App.Vector(1.5, 55, 0), App.Vector(18.5, 55, 0)),
    Part.LineSegment(App.Vector(18.5, 55, 0), App.Vector(20, 53.5, 0)),
    Part.LineSegment(App.Vector(20, 53.5, 0), App.Vector(20, 1.5, 0)),
], False)
sketch10.addConstraint([
    Sketcher.Constraint("Coincident", 0, 2, 1, 1),
    Sketcher.Constraint("Coincident", 1, 2, 2, 1),
    Sketcher.Constraint("Coincident", 2, 2, 3, 1),
    Sketcher.Constraint("Coincident", 3, 2, 4, 1),
    Sketcher.Constraint("Coincident", 4, 2, 5, 1),
    Sketcher.Constraint("Coincident", 5, 2, 6, 1),
    Sketcher.Constraint("Coincident", 6, 2, 7, 1),
    Sketcher.Constraint("Coincident", 7, 2, 0, 1),
    Sketcher.Constraint("Horizontal", 1),
    Sketcher.Constraint("Vertical", 3),
    Sketcher.Constraint("Horizontal", 5),
    Sketcher.Constraint("Vertical", 7),
    Sketcher.Constraint("PointOnObject", 0, 2, -1),
    Sketcher.Constraint("PointOnObject", 2, 2, -2),
    Sketcher.Constraint("Perpendicular", 0, 2),
    Sketcher.Constraint("Perpendicular", 2, 4),
    Sketcher.Constraint("Perpendicular", 4, 6),
    Sketcher.Constraint("Horizontal", 3, 2, 6, 2),
    Sketcher.Constraint("Horizontal", 2, 2, 7, 2),
    Sketcher.Constraint("Vertical", 1, 2, 4, 2),
    Sketcher.Constraint("Vertical", 0, 2, 5, 2),
    Sketcher.Constraint("DistanceX", 1, 2, 1, 1, Q("17 mm")),
    Sketcher.Constraint("DistanceY", 3, 1, 3, 2, Q("52 mm")),
    Sketcher.Constraint("DistanceY", -1, 1, 4, 2, Q("55 mm")),
])
sketch10.setExpression("Constraints[21]", "Params.sketch10_width")
sketch10.setExpression("Constraints[22]", "Params.sketch10_height")
pad4 = body.newObject("PartDesign::Pad", "Pad003")
pad4.Profile = sketch10
pad4.setExpression("Length", "Params.pad4_length")
pad4.Reversed = True

sketch11 = body.newObject("Sketcher::SketchObject", "Sketch010")
sketch11.AttachmentSupport = (doc.getObject("YZ_Plane"), [""])
sketch11.MapMode = "FlatFace"
sketch11.AttachmentOffset = App.Placement(App.Vector(0, 0, -38), App.Rotation())
sketch11.addGeometry([
    Part.Circle(App.Vector(10, 15, 0), App.Vector(0, 0, 1), 2.5),
    Part.Circle(App.Vector(10, 40, 0), App.Vector(0, 0, 1), 2.5),
], False)
sketch11.addConstraint([
    Sketcher.Constraint("Equal", 0, 1),
    Sketcher.Constraint("Vertical", 0, 3, 1, 3),
    Sketcher.Constraint("Diameter", 0, Q("5 mm")),
    Sketcher.Constraint("DistanceX", -1, 1, 0, 3, Q("10 mm")),
    Sketcher.Constraint("DistanceY", -1, 1, 0, 3, Q("15 mm")),
    Sketcher.Constraint("DistanceY", -1, 1, 1, 3, Q("40 mm")),
])
sketch11.setExpression("Constraints[2]", "Params.sketch11_diameter")
doc.recompute()
hole = body.newObject("PartDesign::Hole", "Hole")
hole.Profile = sketch11
hole.ThreadType = "None"
hole.setExpression("Diameter", "Params.hole_diameter")
hole.DepthType = "Dimension"
hole.setExpression("Depth", "Params.hole_depth")
hole.DrillPoint = "Angled"
hole.DrillPointAngle = 118
hole.Reversed = True

doc.recompute()
